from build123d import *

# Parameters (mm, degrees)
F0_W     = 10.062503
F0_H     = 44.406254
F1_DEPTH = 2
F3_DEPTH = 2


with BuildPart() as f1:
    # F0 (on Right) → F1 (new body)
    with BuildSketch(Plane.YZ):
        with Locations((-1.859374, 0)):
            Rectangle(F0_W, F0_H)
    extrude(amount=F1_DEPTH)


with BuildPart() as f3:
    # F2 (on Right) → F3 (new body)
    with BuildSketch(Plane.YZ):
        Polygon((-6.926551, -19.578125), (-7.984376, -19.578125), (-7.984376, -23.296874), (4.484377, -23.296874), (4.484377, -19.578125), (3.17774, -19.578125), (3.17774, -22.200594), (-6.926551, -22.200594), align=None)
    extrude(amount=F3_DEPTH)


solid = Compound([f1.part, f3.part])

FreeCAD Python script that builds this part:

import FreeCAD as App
import Part
import Sketcher

V = App.Vector

doc = App.newDocument("Part")
params = doc.addObject("Spreadsheet::Sheet", "Params")
for row, (alias, value) in enumerate([
    ("pad1_length", "2 mm"),
    ("pad2_length", "2 mm"),
], start=1):
    params.set(f"A{row}", alias)
    params.set(f"B{row}", "=" + value)
    params.setAlias(f"B{row}", alias)

body = doc.addObject("PartDesign::Body", "Body")

# Sketch on YZ plane
sketch1 = body.newObject("Sketcher::SketchObject", "Sketch")
sketch1.AttachmentSupport = (doc.getObject("YZ_Plane"), [""])
sketch1.MapMode = "FlatFace"
sketch1.addGeometry([
    Part.LineSegment(V(-7, 22, 0), V(-7, -22, 0)),
    Part.LineSegment(V(-7, -22, 0), V(3, -22, 0)),
    Part.LineSegment(V(3, -22, 0), V(3, 22, 0)),
    Part.LineSegment(V(3, 22, 0), V(-7, 22, 0)),
], False)
sketch1.addConstraint([
    Sketcher.Constraint("Coincident", 0, 2, 1, 1),
    Sketcher.Constraint("Coincident", 1, 2, 2, 1),
    Sketcher.Constraint("Coincident", 2, 2, 3, 1),
    Sketcher.Constraint("Coincident", 3, 2, 0, 1),
    Sketcher.Constraint("Vertical", 0),
    Sketcher.Constraint("Horizontal", 1),
    Sketcher.Constraint("Vertical", 2),
    Sketcher.Constraint("Horizontal", 3),
    Sketcher.Constraint("DistanceX", 1, 1, 1, 2, 10.062503),
    Sketcher.Constraint("DistanceY", 0, 2, 0, 1, 44.406254),
    Sketcher.Constraint("DistanceX", 0, 2, -1, 1, 6.890625),
    Sketcher.Constraint("DistanceY", 0, 2, -1, 1, 22.203127),
])
pad1 = body.newObject("PartDesign::Pad", "Pad")
pad1.Profile = sketch1
pad1.setExpression("Length", "Params.pad1_length")
body2 = doc.addObject("PartDesign::Body", "Body001")

# Sketch on YZ plane
sketch2 = body2.newObject("Sketcher::SketchObject", "Sketch001")
sketch2.AttachmentSupport = (doc.getObject("YZ_Plane001"), [""])
sketch2.MapMode = "FlatFace"
sketch2.addGeometry([
    Part.LineSegment(V(-6.9, -19.6, 0), V(-8, -19.6, 0)),  # 0
    Part.LineSegment(V(-8, -19.6, 0), V(-8, -23.3, 0)),  # 1
    Part.LineSegment(V(-8, -23.3, 0), V(4.5, -23.3, 0)),  # 2
    Part.LineSegment(V(4.5, -23.3, 0), V(4.5, -19.6, 0)),  # 3
    Part.LineSegment(V(4.5, -19.6, 0), V(3.2, -19.6, 0)),  # 4
    Part.LineSegment(V(3.2, -19.6, 0), V(3.2, -22.2, 0)),  # 5
    Part.LineSegment(V(3.2, -22.2, 0), V(-6.9, -22.2, 0)),  # 6
    Part.LineSegment(V(-6.9, -22.2, 0), V(-6.9, -19.6, 0)),  # 7
], False)
sketch2.addConstraint([
    Sketcher.Constraint("Coincident", 0, 2, 1, 1),
    Sketcher.Constraint("Coincident", 1, 2, 2, 1),
    Sketcher.Constraint("Coincident", 2, 2, 3, 1),
    Sketcher.Constraint("Coincident", 3, 2, 4, 1),
    Sketcher.Constraint("Coincident", 4, 2, 5, 1),
    Sketcher.Constraint("Coincident", 5, 2, 6, 1),
    Sketcher.Constraint("Coincident", 6, 2, 7, 1),
    Sketcher.Constraint("Coincident", 7, 2, 0, 1),
    Sketcher.Constraint("Horizontal", 0),
    Sketcher.Constraint("Vertical", 1),
    Sketcher.Constraint("Horizontal", 2),
    Sketcher.Constraint("Vertical", 3),
    Sketcher.Constraint("Horizontal", 4),
    Sketcher.Constraint("Vertical", 5),
    Sketcher.Constraint("Horizontal", 6),
    Sketcher.Constraint("Vertical", 7),
    Sketcher.Constraint("Horizontal", 0, 2, 3, 2),
    Sketcher.Constraint("DistanceX", 6, 2, 6, 1, 10.104291),
    Sketcher.Constraint("DistanceY", 1, 2, 1, 1, 3.718749),
    Sketcher.Constraint("DistanceY", 5, 2, 5, 1, 2.622469),
    Sketcher.Constraint("DistanceX", 0, 2, 0, 1, 1.057825),
    Sketcher.Constraint("DistanceX", 2, 1, 2, 2, 12.468753),
    Sketcher.Constraint("DistanceX", -1, 1, 4, 2, 3.17774),
    Sketcher.Constraint("DistanceY", 0, 2, -1, 1, 19.578125),
])
pad2 = body2.newObject("PartDesign::Pad", "Pad001")
pad2.Profile = sketch2
pad2.setExpression("Length", "Params.pad2_length")

doc.recompute()
